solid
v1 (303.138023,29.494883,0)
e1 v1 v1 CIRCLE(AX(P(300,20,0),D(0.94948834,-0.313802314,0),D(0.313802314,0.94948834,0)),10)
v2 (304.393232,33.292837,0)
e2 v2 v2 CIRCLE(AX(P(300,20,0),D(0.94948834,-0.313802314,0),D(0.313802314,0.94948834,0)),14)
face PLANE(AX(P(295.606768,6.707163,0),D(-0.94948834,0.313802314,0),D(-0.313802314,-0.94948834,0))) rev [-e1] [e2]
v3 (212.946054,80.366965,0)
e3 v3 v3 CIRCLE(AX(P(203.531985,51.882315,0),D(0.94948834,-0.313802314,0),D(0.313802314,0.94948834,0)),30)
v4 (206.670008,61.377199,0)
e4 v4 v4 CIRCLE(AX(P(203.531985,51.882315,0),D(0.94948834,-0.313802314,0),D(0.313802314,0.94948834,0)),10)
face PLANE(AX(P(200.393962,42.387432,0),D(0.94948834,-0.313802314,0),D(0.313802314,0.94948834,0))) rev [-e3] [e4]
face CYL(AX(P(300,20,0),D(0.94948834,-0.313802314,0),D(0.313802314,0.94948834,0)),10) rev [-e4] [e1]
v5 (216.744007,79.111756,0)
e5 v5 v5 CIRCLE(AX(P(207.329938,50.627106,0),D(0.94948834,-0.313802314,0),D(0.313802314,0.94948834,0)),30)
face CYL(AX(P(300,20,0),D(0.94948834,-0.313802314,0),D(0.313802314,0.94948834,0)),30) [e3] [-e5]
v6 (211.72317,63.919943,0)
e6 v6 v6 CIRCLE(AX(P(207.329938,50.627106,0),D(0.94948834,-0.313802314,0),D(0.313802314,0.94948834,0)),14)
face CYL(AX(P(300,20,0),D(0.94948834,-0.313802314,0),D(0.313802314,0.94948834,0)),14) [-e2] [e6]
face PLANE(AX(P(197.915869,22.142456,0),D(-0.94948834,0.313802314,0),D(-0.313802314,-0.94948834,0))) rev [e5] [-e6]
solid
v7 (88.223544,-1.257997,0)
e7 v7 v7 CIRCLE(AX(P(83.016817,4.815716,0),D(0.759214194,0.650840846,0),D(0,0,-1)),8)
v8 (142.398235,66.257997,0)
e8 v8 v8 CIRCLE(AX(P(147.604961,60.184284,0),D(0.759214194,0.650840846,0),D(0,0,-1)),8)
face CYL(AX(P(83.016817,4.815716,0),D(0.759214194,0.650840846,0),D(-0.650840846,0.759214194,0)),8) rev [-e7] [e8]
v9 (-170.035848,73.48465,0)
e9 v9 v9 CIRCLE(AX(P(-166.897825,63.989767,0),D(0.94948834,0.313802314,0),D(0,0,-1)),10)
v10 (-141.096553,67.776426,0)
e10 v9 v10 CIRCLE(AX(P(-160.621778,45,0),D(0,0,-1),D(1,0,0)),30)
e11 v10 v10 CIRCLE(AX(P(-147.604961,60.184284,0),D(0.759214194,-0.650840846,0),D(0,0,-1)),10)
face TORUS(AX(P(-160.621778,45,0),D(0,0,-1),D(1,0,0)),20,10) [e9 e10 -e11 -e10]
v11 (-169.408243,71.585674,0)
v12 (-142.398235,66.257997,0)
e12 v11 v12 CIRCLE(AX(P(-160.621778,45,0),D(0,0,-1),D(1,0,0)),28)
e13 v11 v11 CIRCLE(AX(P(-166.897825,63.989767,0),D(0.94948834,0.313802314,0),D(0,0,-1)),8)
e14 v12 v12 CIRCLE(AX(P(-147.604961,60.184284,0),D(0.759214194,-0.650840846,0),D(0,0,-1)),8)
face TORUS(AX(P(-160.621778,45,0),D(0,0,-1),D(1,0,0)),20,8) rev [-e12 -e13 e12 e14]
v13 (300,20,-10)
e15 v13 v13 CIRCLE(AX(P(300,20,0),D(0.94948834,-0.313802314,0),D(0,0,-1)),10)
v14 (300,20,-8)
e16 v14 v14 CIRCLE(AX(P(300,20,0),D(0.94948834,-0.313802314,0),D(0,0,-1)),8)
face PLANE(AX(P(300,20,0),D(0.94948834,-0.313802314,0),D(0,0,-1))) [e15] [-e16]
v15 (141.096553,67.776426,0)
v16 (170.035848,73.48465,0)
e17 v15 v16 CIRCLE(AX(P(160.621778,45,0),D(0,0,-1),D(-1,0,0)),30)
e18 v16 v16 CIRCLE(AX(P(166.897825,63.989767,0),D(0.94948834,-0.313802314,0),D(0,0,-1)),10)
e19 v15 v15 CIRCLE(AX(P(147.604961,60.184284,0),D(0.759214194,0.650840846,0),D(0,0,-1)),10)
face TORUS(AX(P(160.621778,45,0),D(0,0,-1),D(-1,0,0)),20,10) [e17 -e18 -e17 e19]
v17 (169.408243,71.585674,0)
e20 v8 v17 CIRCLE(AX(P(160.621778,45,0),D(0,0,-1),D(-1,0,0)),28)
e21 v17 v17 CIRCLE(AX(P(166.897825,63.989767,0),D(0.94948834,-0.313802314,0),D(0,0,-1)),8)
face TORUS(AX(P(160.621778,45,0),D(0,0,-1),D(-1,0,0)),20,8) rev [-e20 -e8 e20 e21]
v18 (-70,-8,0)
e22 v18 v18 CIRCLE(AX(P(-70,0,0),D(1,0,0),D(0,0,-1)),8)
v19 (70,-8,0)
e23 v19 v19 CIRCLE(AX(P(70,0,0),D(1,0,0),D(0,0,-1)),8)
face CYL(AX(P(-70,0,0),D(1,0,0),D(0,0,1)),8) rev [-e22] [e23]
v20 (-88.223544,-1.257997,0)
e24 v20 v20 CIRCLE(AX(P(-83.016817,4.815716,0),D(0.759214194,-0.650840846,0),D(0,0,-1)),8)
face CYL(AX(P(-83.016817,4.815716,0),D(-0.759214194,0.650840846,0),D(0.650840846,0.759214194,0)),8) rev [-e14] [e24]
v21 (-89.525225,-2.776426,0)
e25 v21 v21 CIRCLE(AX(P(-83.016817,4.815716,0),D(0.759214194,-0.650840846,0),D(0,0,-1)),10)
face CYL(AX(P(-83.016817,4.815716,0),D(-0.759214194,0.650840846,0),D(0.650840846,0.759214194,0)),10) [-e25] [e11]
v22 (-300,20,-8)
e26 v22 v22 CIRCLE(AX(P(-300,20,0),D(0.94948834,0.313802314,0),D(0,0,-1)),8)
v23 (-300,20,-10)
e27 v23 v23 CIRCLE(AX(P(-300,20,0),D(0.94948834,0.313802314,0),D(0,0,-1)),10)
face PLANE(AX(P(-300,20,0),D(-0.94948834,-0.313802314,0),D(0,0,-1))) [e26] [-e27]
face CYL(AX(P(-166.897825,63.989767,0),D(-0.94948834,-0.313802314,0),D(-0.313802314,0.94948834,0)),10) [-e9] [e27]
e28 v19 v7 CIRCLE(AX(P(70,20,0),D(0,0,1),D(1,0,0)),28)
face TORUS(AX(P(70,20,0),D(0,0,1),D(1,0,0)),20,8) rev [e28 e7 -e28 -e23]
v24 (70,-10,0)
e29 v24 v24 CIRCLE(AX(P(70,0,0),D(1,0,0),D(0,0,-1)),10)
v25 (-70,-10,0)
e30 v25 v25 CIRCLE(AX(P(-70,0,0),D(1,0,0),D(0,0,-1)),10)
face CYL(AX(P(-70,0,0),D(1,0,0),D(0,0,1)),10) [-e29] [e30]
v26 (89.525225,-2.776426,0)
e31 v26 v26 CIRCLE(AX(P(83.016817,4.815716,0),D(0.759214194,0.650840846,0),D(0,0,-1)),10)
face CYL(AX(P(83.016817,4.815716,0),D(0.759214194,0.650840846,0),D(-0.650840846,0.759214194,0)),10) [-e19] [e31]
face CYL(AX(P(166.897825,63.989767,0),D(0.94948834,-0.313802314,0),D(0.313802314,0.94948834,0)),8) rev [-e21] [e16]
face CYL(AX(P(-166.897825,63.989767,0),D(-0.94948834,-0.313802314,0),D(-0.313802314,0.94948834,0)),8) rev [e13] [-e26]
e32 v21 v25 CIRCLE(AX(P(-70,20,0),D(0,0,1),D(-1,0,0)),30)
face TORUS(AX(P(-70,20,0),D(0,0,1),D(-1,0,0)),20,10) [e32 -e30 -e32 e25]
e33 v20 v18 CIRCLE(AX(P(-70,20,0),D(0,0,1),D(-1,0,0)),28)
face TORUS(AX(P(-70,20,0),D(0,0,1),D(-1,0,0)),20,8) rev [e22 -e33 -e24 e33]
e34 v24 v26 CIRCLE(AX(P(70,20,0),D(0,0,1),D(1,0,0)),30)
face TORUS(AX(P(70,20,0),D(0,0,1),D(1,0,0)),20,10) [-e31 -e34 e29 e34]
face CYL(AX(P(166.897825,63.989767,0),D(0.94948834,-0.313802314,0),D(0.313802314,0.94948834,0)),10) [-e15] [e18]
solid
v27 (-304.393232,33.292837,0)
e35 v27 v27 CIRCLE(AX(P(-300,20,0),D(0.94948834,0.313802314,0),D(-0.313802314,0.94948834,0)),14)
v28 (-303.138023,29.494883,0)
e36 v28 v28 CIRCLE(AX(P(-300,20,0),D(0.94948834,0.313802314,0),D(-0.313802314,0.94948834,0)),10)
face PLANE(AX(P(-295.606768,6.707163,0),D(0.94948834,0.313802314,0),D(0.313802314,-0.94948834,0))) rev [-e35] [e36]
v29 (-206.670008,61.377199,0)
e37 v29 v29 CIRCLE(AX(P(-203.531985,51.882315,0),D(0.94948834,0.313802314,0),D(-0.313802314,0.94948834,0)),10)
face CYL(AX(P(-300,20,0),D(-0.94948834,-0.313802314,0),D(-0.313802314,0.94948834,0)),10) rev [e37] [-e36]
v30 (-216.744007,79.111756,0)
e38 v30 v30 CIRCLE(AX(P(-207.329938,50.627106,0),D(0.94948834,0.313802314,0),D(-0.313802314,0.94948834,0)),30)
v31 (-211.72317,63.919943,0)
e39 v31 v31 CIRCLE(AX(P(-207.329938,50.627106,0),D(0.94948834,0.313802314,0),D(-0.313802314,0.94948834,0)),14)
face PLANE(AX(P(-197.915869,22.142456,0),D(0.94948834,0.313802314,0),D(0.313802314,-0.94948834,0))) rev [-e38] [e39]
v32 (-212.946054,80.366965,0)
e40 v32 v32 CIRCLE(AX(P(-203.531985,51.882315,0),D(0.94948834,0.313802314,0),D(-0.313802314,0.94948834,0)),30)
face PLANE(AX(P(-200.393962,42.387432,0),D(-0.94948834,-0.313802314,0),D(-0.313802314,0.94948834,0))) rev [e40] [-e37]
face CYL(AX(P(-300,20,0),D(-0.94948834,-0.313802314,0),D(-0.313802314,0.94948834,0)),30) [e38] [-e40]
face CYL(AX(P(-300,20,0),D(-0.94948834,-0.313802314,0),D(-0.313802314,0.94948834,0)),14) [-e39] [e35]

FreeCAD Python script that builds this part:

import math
import FreeCAD as App
import Part
import Sketcher
Q = App.Units.Quantity


def add_polygon(sketch, points):
    """Adds a closed chain of lines whose ends are joined by coincident constraints."""
    first, n = sketch.GeometryCount, len(points)
    for a, b in zip(points, points[1:] + points[:1]):
        sketch.addGeometry(Part.LineSegment(App.Vector(*a, 0), App.Vector(*b, 0)), False)
    for i in range(n):
        sketch.addConstraint(Sketcher.Constraint("Coincident", first + i, 2, first + (i + 1) % n, 1))

doc = App.newDocument("Part")
body = doc.addObject("PartDesign::Body", "Body")

# Sketch on YZ plane
sketch1 = doc.addObject("Sketcher::SketchObject", "Sketch")
body.addObject(sketch1)
sketch1.AttachmentSupport = (doc.YZ_Plane, [""])
sketch1.MapMode = "FlatFace"
sketch1.addGeometry([
    Part.Circle(App.Vector(0, 0, 0), App.Vector(0, 0, 1), 10),
    Part.Circle(App.Vector(0, 0, 0), App.Vector(0, 0, 1), 8),
], False)
sketch1.addConstraint([
    Sketcher.Constraint("Coincident", 0, 3, -1, 1),
    Sketcher.Constraint("Coincident", 1, 3, -1, 1),
    Sketcher.Constraint("Diameter", 0, Q("20 mm")),
    Sketcher.Constraint("Diameter", 1, Q("16 mm")),
])

# Sketch on XY plane
sketch2 = doc.addObject("Sketcher::SketchObject", "Sketch001")
body.addObject(sketch2)
sketch2.AttachmentSupport = (doc.XY_Plane, [""])
sketch2.MapMode = "FlatFace"
sketch2.addGeometry([
    Part.LineSegment(App.Vector(0, 0, 0), App.Vector(70, 0, 0)),  # 0
    Part.ArcOfCircle(Part.Circle(App.Vector(70, 20, 0), App.Vector(0, 0, 1), 20), math.radians(-90), math.radians(-49.394972)),  # 1
    Part.LineSegment(App.Vector(83.016817, 4.815716, 0), App.Vector(147.604961, 60.184284, 0)),  # 2
    Part.ArcOfCircle(Part.Circle(App.Vector(160.621778, 45, 0), App.Vector(0, 0, 1), 20), math.radians(71.711474), math.radians(130.605028)),  # 3
    Part.LineSegment(App.Vector(166.897825, 63.989767, 0), App.Vector(300, 20, 0)),  # 4
], False)
sketch2.addConstraint([
    Sketcher.Constraint("Tangent", 0, 2, 1, 1),
    Sketcher.Constraint("Tangent", 1, 2, 2, 1),
    Sketcher.Constraint("Tangent", 2, 2, 3, 2),
    Sketcher.Constraint("Tangent", 3, 1, 4, 1),
    Sketcher.Constraint("Horizontal", 0),
    Sketcher.Constraint("Coincident", 0, 1, -1, 1),
    Sketcher.Constraint("Equal", 1, 3),
    Sketcher.Constraint("Horizontal", 1, 3, 4, 2),
    Sketcher.Constraint("Radius", 1, Q("20 mm")),
    Sketcher.Constraint("DistanceX", 0, 1, 0, 2, Q("70 mm")),
    Sketcher.Constraint("DistanceY", -1, 1, 3, 3, Q("45 mm")),
    Sketcher.Constraint("DistanceX", -1, 1, 4, 2, Q("300 mm")),
    Sketcher.Constraint("Distance", 2, Q("85.072362 mm")),
])
doc.recompute()

additivepipe = doc.addObject("PartDesign::AdditivePipe", "AdditivePipe")
body.addObject(additivepipe)
additivepipe.Profile = sketch1
additivepipe.Spine = (sketch2, ["Edge1", "Edge2", "Edge3", "Edge4", "Edge5"])
body2 = doc.addObject("PartDesign::Body", "Body001")

# Sketch on XY plane
sketch3 = doc.addObject("Sketcher::SketchObject", "Sketch002")
body2.addObject(sketch3)
sketch3.AttachmentSupport = (doc.getObject("XY_Plane001"), [""])
sketch3.MapMode = "FlatFace"
add_polygon(sketch3, [(296.861977, 10.505117), (200.393962, 42.387432), (194.117915, 23.397665), (197.915869, 22.142456), (202.936706, 37.334269), (295.606768, 6.707163)])  # lines 0-5
sketch3.addGeometry(Part.LineSegment(App.Vector(300, 20, 0), App.Vector(203.531985, 51.882315, 0)), True)  # axis
sketch3.addConstraint([
    Sketcher.Constraint("Perpendicular", 0, 1),
    Sketcher.Constraint("Perpendicular", 1, 2),
    Sketcher.Constraint("Perpendicular", 2, 3),
    Sketcher.Constraint("Perpendicular", 3, 4),
    Sketcher.Constraint("Perpendicular", 4, 5),
    Sketcher.Constraint("Perpendicular", 5, 6),
    Sketcher.Constraint("Equal", 2, 5),
    Sketcher.Constraint("Equal", 0, 6),
    Sketcher.Constraint("Distance", 1, Q("20 mm")),
    Sketcher.Constraint("Distance", 2, Q("4 mm")),
    Sketcher.Constraint("DistanceX", -1, 1, 6, 1, Q("300 mm")),
    Sketcher.Constraint("DistanceY", -1, 1, 6, 1, Q("20 mm")),
    Sketcher.Constraint("Distance", 0, Q("101.6 mm")),
    Sketcher.Constraint("DistanceX", 2, 2, 4, 2, Q("97.690899 mm")),
    Sketcher.Constraint("DistanceX", -1, 1, 0, 2, Q("200.393962 mm")),
    Sketcher.Constraint("DistanceY", -1, 1, 0, 2, Q("42.387432 mm")),
])
revolution = doc.addObject("PartDesign::Revolution", "Revolution")
body2.addObject(revolution)
revolution.Profile = sketch3
revolution.ReferenceAxis = (sketch3, ["Axis0"])
revolution.Angle = 360
body3 = doc.addObject("PartDesign::Body", "Body002")
doc.recompute()

mirroring = doc.addObject("Part::Mirroring", "Mirroring")
mirroring.Source = body
mirroring.Base = App.Vector(0, 0, 0)
mirroring.Normal = App.Vector(1, 0, 0)
body3.BaseFeature = mirroring
doc.recompute()

boolean = doc.addObject("PartDesign::Boolean", "Boolean")
body3.addObject(boolean)
boolean.Type = "Fuse"
boolean.addObjects([body])
body4 = doc.addObject("PartDesign::Body", "Body003")
doc.recompute()

mirroring2 = doc.addObject("Part::Mirroring", "Mirroring001")
mirroring2.Source = body2
mirroring2.Base = App.Vector(0, 0, 0)
mirroring2.Normal = App.Vector(1, 0, 0)
body4.BaseFeature = mirroring2
doc.recompute()
mirroring.Visibility = False
mirroring2.Visibility = False

doc.recompute()
